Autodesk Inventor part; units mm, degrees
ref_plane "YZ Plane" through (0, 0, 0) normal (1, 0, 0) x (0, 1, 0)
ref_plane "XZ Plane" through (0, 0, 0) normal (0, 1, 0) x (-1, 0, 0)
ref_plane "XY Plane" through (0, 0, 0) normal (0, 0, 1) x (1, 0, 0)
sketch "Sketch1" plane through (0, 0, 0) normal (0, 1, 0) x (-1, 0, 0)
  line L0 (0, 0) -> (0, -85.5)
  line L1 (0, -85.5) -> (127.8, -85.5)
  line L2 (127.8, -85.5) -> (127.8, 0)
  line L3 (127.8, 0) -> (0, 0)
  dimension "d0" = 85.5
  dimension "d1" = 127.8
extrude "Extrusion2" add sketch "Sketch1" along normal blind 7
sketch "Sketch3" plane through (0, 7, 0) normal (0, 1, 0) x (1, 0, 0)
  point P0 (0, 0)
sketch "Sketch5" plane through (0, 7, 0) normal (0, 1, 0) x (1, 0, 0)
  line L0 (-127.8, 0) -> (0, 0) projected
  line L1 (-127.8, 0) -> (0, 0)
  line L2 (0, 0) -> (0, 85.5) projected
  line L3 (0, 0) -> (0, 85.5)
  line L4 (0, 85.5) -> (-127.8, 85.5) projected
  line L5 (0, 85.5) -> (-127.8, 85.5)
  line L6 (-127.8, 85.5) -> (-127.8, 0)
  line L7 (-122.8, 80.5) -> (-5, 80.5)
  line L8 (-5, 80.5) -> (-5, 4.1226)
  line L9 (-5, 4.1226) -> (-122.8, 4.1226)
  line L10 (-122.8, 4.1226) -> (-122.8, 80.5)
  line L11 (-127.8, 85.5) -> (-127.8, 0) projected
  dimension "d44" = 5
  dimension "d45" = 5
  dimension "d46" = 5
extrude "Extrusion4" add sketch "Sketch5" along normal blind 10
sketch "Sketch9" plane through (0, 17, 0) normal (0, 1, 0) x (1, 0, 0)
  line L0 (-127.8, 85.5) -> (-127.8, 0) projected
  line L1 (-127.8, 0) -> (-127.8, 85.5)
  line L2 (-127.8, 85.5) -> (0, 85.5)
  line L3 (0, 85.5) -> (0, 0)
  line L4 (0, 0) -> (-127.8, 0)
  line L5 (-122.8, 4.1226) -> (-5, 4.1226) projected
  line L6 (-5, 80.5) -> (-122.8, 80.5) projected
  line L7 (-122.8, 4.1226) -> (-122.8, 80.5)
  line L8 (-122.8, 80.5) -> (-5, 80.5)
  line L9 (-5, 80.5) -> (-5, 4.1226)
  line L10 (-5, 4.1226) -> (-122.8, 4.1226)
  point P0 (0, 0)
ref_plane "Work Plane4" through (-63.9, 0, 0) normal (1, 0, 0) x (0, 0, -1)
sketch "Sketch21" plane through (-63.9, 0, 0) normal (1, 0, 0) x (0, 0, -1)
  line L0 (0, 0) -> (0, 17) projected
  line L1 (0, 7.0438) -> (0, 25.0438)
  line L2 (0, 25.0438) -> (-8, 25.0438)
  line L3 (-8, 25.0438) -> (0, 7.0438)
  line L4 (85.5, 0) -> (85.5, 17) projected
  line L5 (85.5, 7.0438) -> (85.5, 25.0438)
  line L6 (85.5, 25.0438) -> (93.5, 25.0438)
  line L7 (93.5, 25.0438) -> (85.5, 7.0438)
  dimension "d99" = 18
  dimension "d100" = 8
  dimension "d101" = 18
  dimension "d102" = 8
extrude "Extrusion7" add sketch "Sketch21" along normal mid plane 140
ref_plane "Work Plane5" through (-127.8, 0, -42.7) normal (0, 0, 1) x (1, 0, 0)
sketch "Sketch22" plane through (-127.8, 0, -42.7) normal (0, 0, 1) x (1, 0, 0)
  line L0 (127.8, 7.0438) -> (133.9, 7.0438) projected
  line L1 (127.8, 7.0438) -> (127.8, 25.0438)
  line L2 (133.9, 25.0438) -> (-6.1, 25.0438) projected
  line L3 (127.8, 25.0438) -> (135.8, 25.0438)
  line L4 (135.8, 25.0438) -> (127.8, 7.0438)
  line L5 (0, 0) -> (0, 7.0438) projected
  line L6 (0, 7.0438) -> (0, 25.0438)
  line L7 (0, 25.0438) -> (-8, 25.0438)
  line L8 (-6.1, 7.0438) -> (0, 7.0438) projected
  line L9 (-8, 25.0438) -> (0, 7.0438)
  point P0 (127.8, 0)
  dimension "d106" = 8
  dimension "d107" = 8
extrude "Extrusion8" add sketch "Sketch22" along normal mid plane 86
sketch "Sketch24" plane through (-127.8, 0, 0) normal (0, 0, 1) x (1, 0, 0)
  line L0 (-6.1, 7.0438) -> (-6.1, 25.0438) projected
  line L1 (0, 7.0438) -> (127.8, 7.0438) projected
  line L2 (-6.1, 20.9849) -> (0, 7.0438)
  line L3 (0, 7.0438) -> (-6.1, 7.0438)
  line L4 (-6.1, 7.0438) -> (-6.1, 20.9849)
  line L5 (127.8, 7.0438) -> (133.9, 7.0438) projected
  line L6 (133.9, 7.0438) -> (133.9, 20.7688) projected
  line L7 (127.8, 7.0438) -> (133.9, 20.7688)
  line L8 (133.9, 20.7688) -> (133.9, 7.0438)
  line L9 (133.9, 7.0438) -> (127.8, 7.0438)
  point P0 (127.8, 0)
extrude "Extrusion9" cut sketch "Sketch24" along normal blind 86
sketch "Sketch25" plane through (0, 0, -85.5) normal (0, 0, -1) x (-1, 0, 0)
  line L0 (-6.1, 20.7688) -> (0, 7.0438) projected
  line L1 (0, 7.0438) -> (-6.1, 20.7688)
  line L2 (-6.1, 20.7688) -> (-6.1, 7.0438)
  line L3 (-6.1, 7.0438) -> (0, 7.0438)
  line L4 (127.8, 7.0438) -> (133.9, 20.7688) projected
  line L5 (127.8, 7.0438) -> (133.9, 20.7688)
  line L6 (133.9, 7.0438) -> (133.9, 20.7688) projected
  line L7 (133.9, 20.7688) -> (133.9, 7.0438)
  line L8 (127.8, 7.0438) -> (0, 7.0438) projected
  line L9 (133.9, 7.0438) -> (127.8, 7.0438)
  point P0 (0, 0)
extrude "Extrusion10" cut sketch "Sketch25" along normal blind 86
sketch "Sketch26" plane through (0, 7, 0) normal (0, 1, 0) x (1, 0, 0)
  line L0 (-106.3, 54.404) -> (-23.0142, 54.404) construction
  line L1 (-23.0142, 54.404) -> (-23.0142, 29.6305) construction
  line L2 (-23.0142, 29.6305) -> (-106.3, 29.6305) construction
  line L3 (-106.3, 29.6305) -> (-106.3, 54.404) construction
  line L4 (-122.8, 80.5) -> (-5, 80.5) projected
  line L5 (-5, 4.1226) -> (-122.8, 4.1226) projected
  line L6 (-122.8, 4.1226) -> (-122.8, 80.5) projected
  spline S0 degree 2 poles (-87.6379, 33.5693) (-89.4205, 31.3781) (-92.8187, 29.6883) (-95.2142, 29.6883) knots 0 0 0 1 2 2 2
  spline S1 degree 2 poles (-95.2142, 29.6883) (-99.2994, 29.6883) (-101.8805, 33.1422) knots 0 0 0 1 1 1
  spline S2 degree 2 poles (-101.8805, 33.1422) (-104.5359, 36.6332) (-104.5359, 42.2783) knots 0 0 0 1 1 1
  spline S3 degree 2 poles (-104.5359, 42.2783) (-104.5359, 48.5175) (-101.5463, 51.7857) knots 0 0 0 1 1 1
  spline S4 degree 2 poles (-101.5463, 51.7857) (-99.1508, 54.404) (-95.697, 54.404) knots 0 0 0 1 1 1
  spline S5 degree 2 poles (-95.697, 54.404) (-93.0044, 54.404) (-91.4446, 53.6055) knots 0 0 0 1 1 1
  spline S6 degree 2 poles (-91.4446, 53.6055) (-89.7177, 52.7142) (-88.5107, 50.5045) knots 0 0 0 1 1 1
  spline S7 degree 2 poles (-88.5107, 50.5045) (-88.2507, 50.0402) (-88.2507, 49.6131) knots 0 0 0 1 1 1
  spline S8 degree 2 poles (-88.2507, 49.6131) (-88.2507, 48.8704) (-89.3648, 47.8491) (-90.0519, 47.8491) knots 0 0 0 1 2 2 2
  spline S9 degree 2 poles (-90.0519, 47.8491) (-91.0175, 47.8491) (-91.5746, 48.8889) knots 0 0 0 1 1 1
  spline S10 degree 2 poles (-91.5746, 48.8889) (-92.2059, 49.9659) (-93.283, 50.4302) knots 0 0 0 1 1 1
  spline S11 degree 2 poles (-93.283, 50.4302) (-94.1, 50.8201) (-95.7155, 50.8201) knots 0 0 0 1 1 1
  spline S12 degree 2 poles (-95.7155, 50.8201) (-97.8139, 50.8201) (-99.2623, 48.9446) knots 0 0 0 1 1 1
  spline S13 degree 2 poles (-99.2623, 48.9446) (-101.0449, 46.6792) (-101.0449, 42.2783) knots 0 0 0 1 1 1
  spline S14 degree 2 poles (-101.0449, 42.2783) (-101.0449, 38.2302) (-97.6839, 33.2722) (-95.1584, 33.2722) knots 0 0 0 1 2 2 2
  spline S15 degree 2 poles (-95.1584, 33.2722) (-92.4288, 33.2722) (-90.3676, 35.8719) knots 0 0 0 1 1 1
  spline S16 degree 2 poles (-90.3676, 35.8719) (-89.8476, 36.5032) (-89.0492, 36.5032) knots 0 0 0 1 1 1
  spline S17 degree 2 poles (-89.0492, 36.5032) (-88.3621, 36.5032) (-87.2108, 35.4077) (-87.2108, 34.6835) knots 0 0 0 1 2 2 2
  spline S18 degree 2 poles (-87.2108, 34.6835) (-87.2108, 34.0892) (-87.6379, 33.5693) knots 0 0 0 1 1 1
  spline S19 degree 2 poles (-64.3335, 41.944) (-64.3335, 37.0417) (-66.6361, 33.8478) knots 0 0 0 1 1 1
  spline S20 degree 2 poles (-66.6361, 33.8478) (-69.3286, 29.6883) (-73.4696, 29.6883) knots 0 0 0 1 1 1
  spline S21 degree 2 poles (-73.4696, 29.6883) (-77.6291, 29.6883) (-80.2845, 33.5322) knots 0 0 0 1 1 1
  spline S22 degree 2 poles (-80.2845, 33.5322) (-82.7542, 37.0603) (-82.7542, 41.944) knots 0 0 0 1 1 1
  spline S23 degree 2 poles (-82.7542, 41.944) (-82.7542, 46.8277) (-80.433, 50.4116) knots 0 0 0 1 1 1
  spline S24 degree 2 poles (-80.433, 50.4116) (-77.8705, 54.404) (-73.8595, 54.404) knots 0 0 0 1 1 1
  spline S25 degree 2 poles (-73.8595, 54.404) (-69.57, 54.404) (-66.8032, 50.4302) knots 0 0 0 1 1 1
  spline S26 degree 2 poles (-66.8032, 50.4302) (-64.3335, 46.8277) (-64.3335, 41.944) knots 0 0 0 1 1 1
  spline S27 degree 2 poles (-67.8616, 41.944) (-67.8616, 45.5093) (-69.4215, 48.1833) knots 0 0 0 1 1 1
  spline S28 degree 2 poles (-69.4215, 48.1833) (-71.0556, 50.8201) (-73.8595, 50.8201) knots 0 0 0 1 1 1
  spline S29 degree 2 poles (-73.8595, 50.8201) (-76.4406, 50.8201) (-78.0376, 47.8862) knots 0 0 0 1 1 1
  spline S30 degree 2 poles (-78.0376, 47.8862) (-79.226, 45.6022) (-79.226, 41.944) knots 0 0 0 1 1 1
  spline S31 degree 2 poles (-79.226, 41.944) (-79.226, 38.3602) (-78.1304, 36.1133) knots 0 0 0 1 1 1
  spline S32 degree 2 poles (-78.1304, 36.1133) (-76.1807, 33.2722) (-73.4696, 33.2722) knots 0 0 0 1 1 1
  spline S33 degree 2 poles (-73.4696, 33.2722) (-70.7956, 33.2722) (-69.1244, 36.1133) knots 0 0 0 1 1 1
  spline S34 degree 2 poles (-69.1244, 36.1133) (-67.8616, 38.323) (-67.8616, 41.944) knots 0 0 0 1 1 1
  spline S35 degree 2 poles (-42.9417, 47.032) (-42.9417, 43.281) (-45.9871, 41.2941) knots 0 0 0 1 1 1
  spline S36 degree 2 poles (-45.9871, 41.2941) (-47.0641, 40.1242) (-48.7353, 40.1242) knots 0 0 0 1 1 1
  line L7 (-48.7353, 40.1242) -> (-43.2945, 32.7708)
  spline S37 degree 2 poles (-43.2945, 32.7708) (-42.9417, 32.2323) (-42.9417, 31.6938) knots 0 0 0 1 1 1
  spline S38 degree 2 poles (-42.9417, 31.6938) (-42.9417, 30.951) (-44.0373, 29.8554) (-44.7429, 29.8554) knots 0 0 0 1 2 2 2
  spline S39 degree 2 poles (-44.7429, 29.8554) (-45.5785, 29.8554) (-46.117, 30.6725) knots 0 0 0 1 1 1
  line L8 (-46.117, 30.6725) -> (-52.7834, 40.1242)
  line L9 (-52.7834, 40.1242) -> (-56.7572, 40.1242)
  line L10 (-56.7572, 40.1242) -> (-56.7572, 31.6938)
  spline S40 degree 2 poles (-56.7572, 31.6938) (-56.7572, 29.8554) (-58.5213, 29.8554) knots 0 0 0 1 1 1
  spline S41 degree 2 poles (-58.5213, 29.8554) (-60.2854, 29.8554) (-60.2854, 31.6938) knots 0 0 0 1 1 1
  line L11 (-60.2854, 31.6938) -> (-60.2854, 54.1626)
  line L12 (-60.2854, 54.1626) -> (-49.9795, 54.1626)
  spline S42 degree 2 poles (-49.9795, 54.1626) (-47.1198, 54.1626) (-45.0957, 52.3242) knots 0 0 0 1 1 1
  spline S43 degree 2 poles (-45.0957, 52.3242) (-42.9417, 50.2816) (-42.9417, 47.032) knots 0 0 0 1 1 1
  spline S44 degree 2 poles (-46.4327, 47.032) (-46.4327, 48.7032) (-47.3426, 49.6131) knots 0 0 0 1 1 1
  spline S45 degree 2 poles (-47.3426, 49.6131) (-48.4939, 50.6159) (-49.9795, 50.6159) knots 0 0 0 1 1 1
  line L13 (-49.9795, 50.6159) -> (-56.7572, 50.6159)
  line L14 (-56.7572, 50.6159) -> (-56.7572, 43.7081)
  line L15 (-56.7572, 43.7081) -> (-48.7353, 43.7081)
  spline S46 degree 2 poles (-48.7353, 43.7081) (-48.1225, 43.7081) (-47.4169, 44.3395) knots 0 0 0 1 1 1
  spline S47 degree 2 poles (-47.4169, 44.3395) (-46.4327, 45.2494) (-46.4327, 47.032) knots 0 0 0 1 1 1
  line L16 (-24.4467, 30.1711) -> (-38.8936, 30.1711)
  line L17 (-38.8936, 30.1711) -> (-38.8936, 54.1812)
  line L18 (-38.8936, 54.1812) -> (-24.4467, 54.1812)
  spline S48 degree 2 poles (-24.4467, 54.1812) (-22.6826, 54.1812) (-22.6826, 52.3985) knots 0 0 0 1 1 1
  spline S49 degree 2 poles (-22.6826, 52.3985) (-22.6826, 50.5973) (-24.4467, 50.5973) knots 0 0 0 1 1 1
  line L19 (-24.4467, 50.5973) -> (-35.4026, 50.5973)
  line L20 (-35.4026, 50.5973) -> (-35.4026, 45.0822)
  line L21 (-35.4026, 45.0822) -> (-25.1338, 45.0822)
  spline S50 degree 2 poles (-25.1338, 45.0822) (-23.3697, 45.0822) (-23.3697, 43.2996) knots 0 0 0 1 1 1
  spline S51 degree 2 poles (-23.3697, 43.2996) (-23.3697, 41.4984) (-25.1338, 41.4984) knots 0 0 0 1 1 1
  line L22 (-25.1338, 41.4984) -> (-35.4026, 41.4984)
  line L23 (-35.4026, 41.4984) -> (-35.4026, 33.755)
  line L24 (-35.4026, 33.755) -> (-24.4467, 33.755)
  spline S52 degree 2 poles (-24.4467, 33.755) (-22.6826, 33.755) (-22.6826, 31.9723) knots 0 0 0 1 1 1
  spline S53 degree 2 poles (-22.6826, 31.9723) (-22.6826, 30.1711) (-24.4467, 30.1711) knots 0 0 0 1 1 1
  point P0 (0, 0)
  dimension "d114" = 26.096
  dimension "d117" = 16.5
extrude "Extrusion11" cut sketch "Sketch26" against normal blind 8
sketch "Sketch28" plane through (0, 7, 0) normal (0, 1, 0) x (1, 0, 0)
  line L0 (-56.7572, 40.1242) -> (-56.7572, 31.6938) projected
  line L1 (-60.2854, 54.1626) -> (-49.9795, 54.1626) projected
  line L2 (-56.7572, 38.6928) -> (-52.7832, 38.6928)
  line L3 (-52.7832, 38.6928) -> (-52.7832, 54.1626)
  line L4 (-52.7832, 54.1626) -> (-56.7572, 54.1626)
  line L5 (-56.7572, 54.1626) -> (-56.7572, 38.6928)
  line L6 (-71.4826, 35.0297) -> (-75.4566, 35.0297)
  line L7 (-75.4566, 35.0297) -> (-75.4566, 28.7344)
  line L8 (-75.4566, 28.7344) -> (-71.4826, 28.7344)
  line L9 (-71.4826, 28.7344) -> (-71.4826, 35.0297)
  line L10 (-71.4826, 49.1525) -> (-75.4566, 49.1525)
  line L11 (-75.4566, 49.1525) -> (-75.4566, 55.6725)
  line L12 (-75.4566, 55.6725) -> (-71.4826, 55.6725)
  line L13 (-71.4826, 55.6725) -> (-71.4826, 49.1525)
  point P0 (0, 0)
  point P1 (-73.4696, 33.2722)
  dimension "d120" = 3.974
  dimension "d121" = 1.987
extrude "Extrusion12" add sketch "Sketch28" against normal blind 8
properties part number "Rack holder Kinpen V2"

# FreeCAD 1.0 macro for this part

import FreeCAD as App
import Part
import Sketcher
from FreeCAD import Vector

doc = App.newDocument("Part")
body = doc.addObject("PartDesign::Body", "Body")
body.AllowCompound = True

sketch1 = body.newObject("Sketcher::SketchObject", "Sketch")
sketch1.AttachmentSupport = (doc.getObject("XZ_Plane"), [""])
sketch1.MapMode = "FlatFace"
sketch1.addGeometry([
    Part.LineSegment(Vector(-128, 0, 0), Vector(0, 0, 0)),
    Part.LineSegment(Vector(0, 0, 0), Vector(0, -86, 0)),
    Part.LineSegment(Vector(0, -86, 0), Vector(-128, -86, 0)),
    Part.LineSegment(Vector(-128, -86, 0), Vector(-128, 0, 0)),
], False)
sketch1.addConstraint([
    Sketcher.Constraint("Coincident", 0, 2, 1, 1),
    Sketcher.Constraint("Coincident", 1, 2, 2, 1),
    Sketcher.Constraint("Coincident", 2, 2, 3, 1),
    Sketcher.Constraint("Coincident", 3, 2, 0, 1),
    Sketcher.Constraint("Horizontal", 0),
    Sketcher.Constraint("Vertical", 1),
    Sketcher.Constraint("Horizontal", 2),
    Sketcher.Constraint("Vertical", 3),
    Sketcher.Constraint("Coincident", 0, 2, -1, 1),
    Sketcher.Constraint("DistanceX", 0, 1, 0, 2, 127.8),
    Sketcher.Constraint("DistanceY", 1, 2, 1, 1, 85.5),
])
pad1 = body.newObject("PartDesign::Pad", "Pad")
pad1.Profile = sketch1
pad1.Length = 7
pad1.Reversed = True

sketch2 = body.newObject("Sketcher::SketchObject", "Sketch001")
sketch2.AttachmentSupport = (doc.getObject("XZ_Plane"), [""])
sketch2.MapMode = "FlatFace"
sketch2.AttachmentOffset = App.Placement(Vector(0, 0, -7), App.Rotation())
sketch2.addGeometry([
    Part.LineSegment(Vector(-128, -86, 0), Vector(-128, 0, 0)),
    Part.LineSegment(Vector(-128, 0, 0), Vector(0, 0, 0)),
    Part.LineSegment(Vector(0, 0, 0), Vector(0, -86, 0)),
    Part.LineSegment(Vector(0, -86, 0), Vector(-128, -86, 0)),
    Part.LineSegment(Vector(-123, -4, 0), Vector(-123, -80, 0)),
    Part.LineSegment(Vector(-123, -80, 0), Vector(-5, -80, 0)),
    Part.LineSegment(Vector(-5, -80, 0), Vector(-5, -4, 0)),
    Part.LineSegment(Vector(-5, -4, 0), Vector(-123, -4, 0)),
], False)
sketch2.addConstraint([
    Sketcher.Constraint("Coincident", 0, 2, 1, 1),
    Sketcher.Constraint("Coincident", 1, 2, 2, 1),
    Sketcher.Constraint("Coincident", 2, 2, 3, 1),
    Sketcher.Constraint("Coincident", 3, 2, 0, 1),
    Sketcher.Constraint("Coincident", 4, 2, 5, 1),
    Sketcher.Constraint("Coincident", 5, 2, 6, 1),
    Sketcher.Constraint("Coincident", 6, 2, 7, 1),
    Sketcher.Constraint("Coincident", 7, 2, 4, 1),
    Sketcher.Constraint("Vertical", 0),
    Sketcher.Constraint("Horizontal", 1),
    Sketcher.Constraint("Vertical", 2),
    Sketcher.Constraint("Horizontal", 3),
    Sketcher.Constraint("Vertical", 4),
    Sketcher.Constraint("Horizontal", 5),
    Sketcher.Constraint("Vertical", 6),
    Sketcher.Constraint("Horizontal", 7),
    Sketcher.Constraint("Coincident", 1, 2, -1, 1),
    Sketcher.Constraint("DistanceX", 5, 2, -1, 1, 5.0),
    Sketcher.Constraint("DistanceX", 3, 2, 4, 2, 5.0),
    Sketcher.Constraint("DistanceY", 3, 2, 4, 2, 5.0),
    Sketcher.Constraint("DistanceX", 1, 1, 1, 2, 127.8),
    Sketcher.Constraint("DistanceY", 0, 1, 0, 2, 85.5),
    Sketcher.Constraint("DistanceY", 4, 2, 4, 1, 76.3774),
])
pad2 = body.newObject("PartDesign::Pad", "Pad001")
pad2.Profile = sketch2
pad2.Length = 10
pad2.Reversed = True

sketch3 = body.newObject("Sketcher::SketchObject", "Sketch002")
sketch3.AttachmentSupport = (doc.getObject("YZ_Plane"), [""])
sketch3.MapMode = "FlatFace"
sketch3.AttachmentOffset = App.Placement(Vector(0, 0, -63.9), App.Rotation())
sketch3.addGeometry([
    Part.LineSegment(Vector(25, 8, 0), Vector(7, 0, 0)),
    Part.LineSegment(Vector(7, 0, 0), Vector(25, 0, 0)),
    Part.LineSegment(Vector(25, 0, 0), Vector(25, 8, 0)),
    Part.LineSegment(Vector(25, -86, 0), Vector(7, -86, 0)),
    Part.LineSegment(Vector(7, -86, 0), Vector(25, -94, 0)),
    Part.LineSegment(Vector(25, -94, 0), Vector(25, -86, 0)),
], False)
sketch3.addConstraint([
    Sketcher.Constraint("Coincident", 0, 2, 1, 1),
    Sketcher.Constraint("Coincident", 1, 2, 2, 1),
    Sketcher.Constraint("Coincident", 2, 2, 0, 1),
    Sketcher.Constraint("Coincident", 3, 2, 4, 1),
    Sketcher.Constraint("Coincident", 4, 2, 5, 1),
    Sketcher.Constraint("Coincident", 5, 2, 3, 1),
    Sketcher.Constraint("Horizontal", 1),
    Sketcher.Constraint("Vertical", 2),
    Sketcher.Constraint("Horizontal", 3),
    Sketcher.Constraint("Vertical", 5),
    Sketcher.Constraint("PointOnObject", 0, 2, -1),
    Sketcher.Constraint("Vertical", 0, 2, 3, 2),
    Sketcher.Constraint("Vertical", 2, 2, 4, 2),
    Sketcher.Constraint("Equal", 2, 5),
    Sketcher.Constraint("DistanceX", 1, 1, 1, 2, 18.0),
    Sketcher.Constraint("DistanceY", 2, 1, 2, 2, 8.0),
    Sketcher.Constraint("DistanceY", 3, 2, -1, 1, 85.5),
    Sketcher.Constraint("DistanceX", -1, 1, 0, 2, 7.0438),
])
pad3 = body.newObject("PartDesign::Pad", "Pad002")
pad3.Profile = sketch3
pad3.Length = 140
pad3.Midplane = True

sketch4 = body.newObject("Sketcher::SketchObject", "Sketch003")
sketch4.AttachmentSupport = (doc.getObject("XY_Plane"), [""])
sketch4.MapMode = "FlatFace"
sketch4.AttachmentOffset = App.Placement(Vector(0, 0, -42.7), App.Rotation())
sketch4.addGeometry([
    Part.LineSegment(Vector(-128, 7, 0), Vector(-128, 25, 0)),
    Part.LineSegment(Vector(-128, 25, 0), Vector(-136, 25, 0)),
    Part.LineSegment(Vector(-136, 25, 0), Vector(-128, 7, 0)),
    Part.LineSegment(Vector(0, 25, 0), Vector(0, 7, 0)),
    Part.LineSegment(Vector(0, 7, 0), Vector(8, 25, 0)),
    Part.LineSegment(Vector(8, 25, 0), Vector(0, 25, 0)),
], False)
sketch4.addConstraint([
    Sketcher.Constraint("Coincident", 0, 2, 1, 1),
    Sketcher.Constraint("Coincident", 1, 2, 2, 1),
    Sketcher.Constraint("Coincident", 2, 2, 0, 1),
    Sketcher.Constraint("Coincident", 3, 2, 4, 1),
    Sketcher.Constraint("Coincident", 4, 2, 5, 1),
    Sketcher.Constraint("Coincident", 5, 2, 3, 1),
    Sketcher.Constraint("Vertical", 0),
    Sketcher.Constraint("Horizontal", 1),
    Sketcher.Constraint("Vertical", 3),
    Sketcher.Constraint("Horizontal", 5),
    Sketcher.Constraint("PointOnObject", 3, 2, -2),
    Sketcher.Constraint("Horizontal", 2, 2, 3, 2),
    Sketcher.Constraint("Horizontal", 1, 2, 4, 2),
    Sketcher.Constraint("Equal", 1, 5),
    Sketcher.Constraint("DistanceX", 1, 2, 1, 1, 8.0),
    Sketcher.Constraint("DistanceY", 0, 1, 0, 2, 18.0),
    Sketcher.Constraint("DistanceX", 0, 2, -1, 1, 127.8),
    Sketcher.Constraint("DistanceY", -1, 1, 0, 2, 25.0438),
])
pad4 = body.newObject("PartDesign::Pad", "Pad003")
pad4.Profile = sketch4
pad4.Length = 86
pad4.Midplane = True

sketch5 = body.newObject("Sketcher::SketchObject", "Sketch004")
sketch5.AttachmentSupport = (doc.getObject("XY_Plane"), [""])
sketch5.MapMode = "FlatFace"
sketch5.addGeometry([
    Part.LineSegment(Vector(6, 21, 0), Vector(0, 7, 0)),
    Part.LineSegment(Vector(0, 7, 0), Vector(6, 7, 0)),
    Part.LineSegment(Vector(6, 7, 0), Vector(6, 21, 0)),
    Part.LineSegment(Vector(-134, 21, 0), Vector(-134, 7, 0)),
    Part.LineSegment(Vector(-134, 7, 0), Vector(-128, 7, 0)),
    Part.LineSegment(Vector(-128, 7, 0), Vector(-134, 21, 0)),
], False)
sketch5.addConstraint([
    Sketcher.Constraint("Coincident", 0, 2, 1, 1),
    Sketcher.Constraint("Coincident", 1, 2, 2, 1),
    Sketcher.Constraint("Coincident", 2, 2, 0, 1),
    Sketcher.Constraint("Coincident", 3, 2, 4, 1),
    Sketcher.Constraint("Coincident", 4, 2, 5, 1),
    Sketcher.Constraint("Coincident", 5, 2, 3, 1),
    Sketcher.Constraint("Horizontal", 1),
    Sketcher.Constraint("Vertical", 2),
    Sketcher.Constraint("Vertical", 3),
    Sketcher.Constraint("Horizontal", 4),
    Sketcher.Constraint("PointOnObject", 0, 2, -2),
    Sketcher.Constraint("Horizontal", 1, 2, 3, 2),
    Sketcher.Constraint("Equal", 1, 4),
    Sketcher.Constraint("DistanceX", 1, 1, 1, 2, 6.1),
    Sketcher.Constraint("DistanceX", 3, 2, 1, 2, 140.0),
    Sketcher.Constraint("DistanceY", 2, 1, 2, 2, 13.725),
    Sketcher.Constraint("DistanceY", 3, 2, 3, 1, 13.941),
    Sketcher.Constraint("DistanceY", -1, 1, 5, 2, 20.985),
])
pocket1 = body.newObject("PartDesign::Pocket", "Pocket")
pocket1.Profile = sketch5
pocket1.Length = 86
pocket1.Reversed = True

sketch6 = body.newObject("Sketcher::SketchObject", "Sketch005")
sketch6.AttachmentSupport = (doc.getObject("XY_Plane"), [""])
sketch6.MapMode = "FlatFace"
sketch6.AttachmentOffset = App.Placement(Vector(0, 0, -85.5), App.Rotation())
sketch6.addGeometry([
    Part.LineSegment(Vector(-134, 21, 0), Vector(-128, 7, 0)),
    Part.LineSegment(Vector(-128, 7, 0), Vector(-134, 7, 0)),
    Part.LineSegment(Vector(-134, 7, 0), Vector(-134, 21, 0)),
    Part.LineSegment(Vector(0, 7, 0), Vector(6, 21, 0)),
    Part.LineSegment(Vector(6, 21, 0), Vector(6, 7, 0)),
    Part.LineSegment(Vector(6, 7, 0), Vector(0, 7, 0)),
], False)
sketch6.addConstraint([
    Sketcher.Constraint("Coincident", 0, 2, 1, 1),
    Sketcher.Constraint("Coincident", 1, 2, 2, 1),
    Sketcher.Constraint("Coincident", 2, 2, 0, 1),
    Sketcher.Constraint("Coincident", 3, 2, 4, 1),
    Sketcher.Constraint("Coincident", 4, 2, 5, 1),
    Sketcher.Constraint("Coincident", 5, 2, 3, 1),
    Sketcher.Constraint("Horizontal", 1),
    Sketcher.Constraint("Vertical", 2),
    Sketcher.Constraint("Vertical", 4),
    Sketcher.Constraint("Horizontal", 5),
    Sketcher.Constraint("PointOnObject", 5, 2, -2),
    Sketcher.Constraint("Horizontal", 2, 2, 3, 2),
    Sketcher.Constraint("Horizontal", 1, 2, 4, 2),
    Sketcher.Constraint("Equal", 1, 5),
    Sketcher.Constraint("DistanceX", 1, 2, 1, 1, 6.1),
    Sketcher.Constraint("DistanceX", 2, 2, 3, 2, 140.0),
    Sketcher.Constraint("DistanceY", 2, 1, 2, 2, 13.725),
    Sketcher.Constraint("DistanceY", -1, 1, 0, 2, 7.0438),
])
pocket2 = body.newObject("PartDesign::Pocket", "Pocket001")
pocket2.Profile = sketch6
pocket2.Length = 86

sketch7 = body.newObject("Sketcher::SketchObject", "Sketch006")
sketch7.AttachmentSupport = (doc.getObject("XZ_Plane"), [""])
sketch7.MapMode = "FlatFace"
sketch7.AttachmentOffset = App.Placement(Vector(0, 0, -7), App.Rotation())
sketch7.addGeometry([
    Part.BSplineCurve([Vector(-87.6379, -33.5693, 0), Vector(-89.4205, -31.3781, 0), Vector(-92.8187, -29.6883, 0), Vector(-95.2142, -29.6883, 0)], [3, 1, 3], [0, 1, 2], False, 2, [1, 1, 1, 1], False),
    Part.BSplineCurve([Vector(-87.2108, -34.6835, 0), Vector(-87.2108, -34.0892, 0), Vector(-87.6379, -33.5693, 0)], [3, 3], [0, 1], False, 2, [1, 1, 1], False),
    Part.BSplineCurve([Vector(-89.0492, -36.5032, 0), Vector(-88.3621, -36.5032, 0), Vector(-87.2108, -35.4077, 0), Vector(-87.2108, -34.6835, 0)], [3, 1, 3], [0, 1, 2], False, 2, [1, 1, 1, 1], False),
    Part.BSplineCurve([Vector(-90.3676, -35.8719, 0), Vector(-89.8476, -36.5032, 0), Vector(-89.0492, -36.5032, 0)], [3, 3], [0, 1], False, 2, [1, 1, 1], False),
    Part.BSplineCurve([Vector(-95.1584, -33.2722, 0), Vector(-92.4288, -33.2722, 0), Vector(-90.3676, -35.8719, 0)], [3, 3], [0, 1], False, 2, [1, 1, 1], False),
    Part.BSplineCurve([Vector(-101.0449, -42.2783, 0), Vector(-101.0449, -38.2302, 0), Vector(-97.6839, -33.2722, 0), Vector(-95.1584, -33.2722, 0)], [3, 1, 3], [0, 1, 2], False, 2, [1, 1, 1, 1], False),
    Part.BSplineCurve([Vector(-99.2623, -48.9446, 0), Vector(-101.0449, -46.6792, 0), Vector(-101.0449, -42.2783, 0)], [3, 3], [0, 1], False, 2, [1, 1, 1], False),
    Part.BSplineCurve([Vector(-95.7155, -50.8201, 0), Vector(-97.8139, -50.8201, 0), Vector(-99.2623, -48.9446, 0)], [3, 3], [0, 1], False, 2, [1, 1, 1], False),
    Part.BSplineCurve([Vector(-93.283, -50.4302, 0), Vector(-94.1, -50.8201, 0), Vector(-95.7155, -50.8201, 0)], [3, 3], [0, 1], False, 2, [1, 1, 1], False),
    Part.BSplineCurve([Vector(-91.5746, -48.8889, 0), Vector(-92.2059, -49.9659, 0), Vector(-93.283, -50.4302, 0)], [3, 3], [0, 1], False, 2, [1, 1, 1], False),
    Part.BSplineCurve([Vector(-90.0519, -47.8491, 0), Vector(-91.0175, -47.8491, 0), Vector(-91.5746, -48.8889, 0)], [3, 3], [0, 1], False, 2, [1, 1, 1], False),
    Part.BSplineCurve([Vector(-88.2507, -49.6131, 0), Vector(-88.2507, -48.8704, 0), Vector(-89.3648, -47.8491, 0), Vector(-90.0519, -47.8491, 0)], [3, 1, 3], [0, 1, 2], False, 2, [1, 1, 1, 1], False),
    Part.BSplineCurve([Vector(-88.5107, -50.5045, 0), Vector(-88.2507, -50.0402, 0), Vector(-88.2507, -49.6131, 0)], [3, 3], [0, 1], False, 2, [1, 1, 1], False),
    Part.BSplineCurve([Vector(-91.4446, -53.6055, 0), Vector(-89.7177, -52.7142, 0), Vector(-88.5107, -50.5045, 0)], [3, 3], [0, 1], False, 2, [1, 1, 1], False),
    Part.BSplineCurve([Vector(-95.697, -54.404, 0), Vector(-93.0044, -54.404, 0), Vector(-91.4446, -53.6055, 0)], [3, 3], [0, 1], False, 2, [1, 1, 1], False),
    Part.BSplineCurve([Vector(-101.5463, -51.7857, 0), Vector(-99.1508, -54.404, 0), Vector(-95.697, -54.404, 0)], [3, 3], [0, 1], False, 2, [1, 1, 1], False),
    Part.BSplineCurve([Vector(-104.5359, -42.2783, 0), Vector(-104.5359, -48.5175, 0), Vector(-101.5463, -51.7857, 0)], [3, 3], [0, 1], False, 2, [1, 1, 1], False),
    Part.BSplineCurve([Vector(-101.8805, -33.1422, 0), Vector(-104.5359, -36.6332, 0), Vector(-104.5359, -42.2783, 0)], [3, 3], [0, 1], False, 2, [1, 1, 1], False),
    Part.BSplineCurve([Vector(-95.2142, -29.6883, 0), Vector(-99.2994, -29.6883, 0), Vector(-101.8805, -33.1422, 0)], [3, 3], [0, 1], False, 2, [1, 1, 1], False),
    Part.BSplineCurve([Vector(-64.3335, -41.944, 0), Vector(-64.3335, -37.0417, 0), Vector(-66.6361, -33.8478, 0)], [3, 3], [0, 1], False, 2, [1, 1, 1], False),
    Part.BSplineCurve([Vector(-66.8032, -50.4302, 0), Vector(-64.3335, -46.8277, 0), Vector(-64.3335, -41.944, 0)], [3, 3], [0, 1], False, 2, [1, 1, 1], False),
    Part.BSplineCurve([Vector(-73.8595, -54.404, 0), Vector(-69.57, -54.404, 0), Vector(-66.8032, -50.4302, 0)], [3, 3], [0, 1], False, 2, [1, 1, 1], False),
    Part.BSplineCurve([Vector(-80.433, -50.4116, 0), Vector(-77.8705, -54.404, 0), Vector(-73.8595, -54.404, 0)], [3, 3], [0, 1], False, 2, [1, 1, 1], False),
    Part.BSplineCurve([Vector(-82.7542, -41.944, 0), Vector(-82.7542, -46.8277, 0), Vector(-80.433, -50.4116, 0)], [3, 3], [0, 1], False, 2, [1, 1, 1], False),
    Part.BSplineCurve([Vector(-80.2845, -33.5322, 0), Vector(-82.7542, -37.0603, 0), Vector(-82.7542, -41.944, 0)], [3, 3], [0, 1], False, 2, [1, 1, 1], False),
    Part.BSplineCurve([Vector(-73.4696, -29.6883, 0), Vector(-77.6291, -29.6883, 0), Vector(-80.2845, -33.5322, 0)], [3, 3], [0, 1], False, 2, [1, 1, 1], False),
    Part.BSplineCurve([Vector(-66.6361, -33.8478, 0), Vector(-69.3286, -29.6883, 0), Vector(-73.4696, -29.6883, 0)], [3, 3], [0, 1], False, 2, [1, 1, 1], False),
    Part.BSplineCurve([Vector(-67.8616, -41.944, 0), Vector(-67.8616, -45.5093, 0), Vector(-69.4215, -48.1833, 0)], [3, 3], [0, 1], False, 2, [1, 1, 1], False),
    Part.BSplineCurve([Vector(-69.1244, -36.1133, 0), Vector(-67.8616, -38.323, 0), Vector(-67.8616, -41.944, 0)], [3, 3], [0, 1], False, 2, [1, 1, 1], False),
    Part.BSplineCurve([Vector(-73.4696, -33.2722, 0), Vector(-70.7956, -33.2722, 0), Vector(-69.1244, -36.1133, 0)], [3, 3], [0, 1], False, 2, [1, 1, 1], False),
    Part.BSplineCurve([Vector(-78.1304, -36.1133, 0), Vector(-76.1807, -33.2722, 0), Vector(-73.4696, -33.2722, 0)], [3, 3], [0, 1], False, 2, [1, 1, 1], False),
    Part.BSplineCurve([Vector(-79.226, -41.944, 0), Vector(-79.226, -38.3602, 0), Vector(-78.1304, -36.1133, 0)], [3, 3], [0, 1], False, 2, [1, 1, 1], False),
    Part.BSplineCurve([Vector(-78.0376, -47.8862, 0), Vector(-79.226, -45.6022, 0), Vector(-79.226, -41.944, 0)], [3, 3], [0, 1], False, 2, [1, 1, 1], False),
    Part.BSplineCurve([Vector(-73.8595, -50.8201, 0), Vector(-76.4406, -50.8201, 0), Vector(-78.0376, -47.8862, 0)], [3, 3], [0, 1], False, 2, [1, 1, 1], False),
    Part.BSplineCurve([Vector(-69.4215, -48.1833, 0), Vector(-71.0556, -50.8201, 0), Vector(-73.8595, -50.8201, 0)], [3, 3], [0, 1], False, 2, [1, 1, 1], False),
    Part.BSplineCurve([Vector(-42.9417, -47.032, 0), Vector(-42.9417, -43.281, 0), Vector(-45.9871, -41.2941, 0)], [3, 3], [0, 1], False, 2, [1, 1, 1], False),
    Part.BSplineCurve([Vector(-45.0957, -52.3242, 0), Vector(-42.9417, -50.2816, 0), Vector(-42.9417, -47.032, 0)], [3, 3], [0, 1], False, 2, [1, 1, 1], False),
    Part.BSplineCurve([Vector(-49.9795, -54.1626, 0), Vector(-47.1198, -54.1626, 0), Vector(-45.0957, -52.3242, 0)], [3, 3], [0, 1], False, 2, [1, 1, 1], False),
    Part.LineSegment(Vector(-49.9795, -54.1626, 0), Vector(-60.2854, -54.1626, 0)),
    Part.LineSegment(Vector(-60.2854, -54.1626, 0), Vector(-60.2854, -31.6938, 0)),
    Part.BSplineCurve([Vector(-58.5213, -29.8554, 0), Vector(-60.2854, -29.8554, 0), Vector(-60.2854, -31.6938, 0)], [3, 3], [0, 1], False, 2, [1, 1, 1], False),
    Part.BSplineCurve([Vector(-56.7572, -31.6938, 0), Vector(-56.7572, -29.8554, 0), Vector(-58.5213, -29.8554, 0)], [3, 3], [0, 1], False, 2, [1, 1, 1], False),
    Part.LineSegment(Vector(-56.7572, -31.6938, 0), Vector(-56.7572, -40.1242, 0)),
    Part.LineSegment(Vector(-56.7572, -40.1242, 0), Vector(-52.7834, -40.1242, 0)),
    Part.LineSegment(Vector(-52.7834, -40.1242, 0), Vector(-46.117, -30.6725, 0)),
    Part.BSplineCurve([Vector(-44.7429, -29.8554, 0), Vector(-45.5785, -29.8554, 0), Vector(-46.117, -30.6725, 0)], [3, 3], [0, 1], False, 2, [1, 1, 1], False),
    Part.BSplineCurve([Vector(-42.9417, -31.6938, 0), Vector(-42.9417, -30.951, 0), Vector(-44.0373, -29.8554, 0), Vector(-44.7429, -29.8554, 0)], [3, 1, 3], [0, 1, 2], False, 2, [1, 1, 1, 1], False),
    Part.BSplineCurve([Vector(-43.2945, -32.7708, 0), Vector(-42.9417, -32.2323, 0), Vector(-42.9417, -31.6938, 0)], [3, 3], [0, 1], False, 2, [1, 1, 1], False),
    Part.LineSegment(Vector(-43.2945, -32.7708, 0), Vector(-48.7353, -40.1242, 0)),
    Part.BSplineCurve([Vector(-45.9871, -41.2941, 0), Vector(-47.0641, -40.1242, 0), Vector(-48.7353, -40.1242, 0)], [3, 3], [0, 1], False, 2, [1, 1, 1], False),
    Part.BSplineCurve([Vector(-46.4327, -47.032, 0), Vector(-46.4327, -48.7032, 0), Vector(-47.3426, -49.6131, 0)], [3, 3], [0, 1], False, 2, [1, 1, 1], False),
    Part.BSplineCurve([Vector(-47.4169, -44.3395, 0), Vector(-46.4327, -45.2494, 0), Vector(-46.4327, -47.032, 0)], [3, 3], [0, 1], False, 2, [1, 1, 1], False),
    Part.BSplineCurve([Vector(-48.7353, -43.7081, 0), Vector(-48.1225, -43.7081, 0), Vector(-47.4169, -44.3395, 0)], [3, 3], [0, 1], False, 2, [1, 1, 1], False),
    Part.LineSegment(Vector(-48.7353, -43.7081, 0), Vector(-56.7572, -43.7081, 0)),
    Part.LineSegment(Vector(-56.7572, -43.7081, 0), Vector(-56.7572, -50.6159, 0)),
    Part.LineSegment(Vector(-56.7572, -50.6159, 0), Vector(-49.9795, -50.6159, 0)),
    Part.BSplineCurve([Vector(-47.3426, -49.6131, 0), Vector(-48.4939, -50.6159, 0), Vector(-49.9795, -50.6159, 0)], [3, 3], [0, 1], False, 2, [1, 1, 1], False),
    Part.LineSegment(Vector(-38.8936, -30.1711, 0), Vector(-24.4467, -30.1711, 0)),
    Part.BSplineCurve([Vector(-22.6826, -31.9723, 0), Vector(-22.6826, -30.1711, 0), Vector(-24.4467, -30.1711, 0)], [3, 3], [0, 1], False, 2, [1, 1, 1], False),
    Part.BSplineCurve([Vector(-24.4467, -33.755, 0), Vector(-22.6826, -33.755, 0), Vector(-22.6826, -31.9723, 0)], [3, 3], [0, 1], False, 2, [1, 1, 1], False),
    Part.LineSegment(Vector(-24.4467, -33.755, 0), Vector(-35.4026, -33.755, 0)),
    Part.LineSegment(Vector(-35.4026, -33.755, 0), Vector(-35.4026, -41.4984, 0)),
    Part.LineSegment(Vector(-35.4026, -41.4984, 0), Vector(-25.1338, -41.4984, 0)),
    Part.BSplineCurve([Vector(-23.3697, -43.2996, 0), Vector(-23.3697, -41.4984, 0), Vector(-25.1338, -41.4984, 0)], [3, 3], [0, 1], False, 2, [1, 1, 1], False),
    Part.BSplineCurve([Vector(-25.1338, -45.0822, 0), Vector(-23.3697, -45.0822, 0), Vector(-23.3697, -43.2996, 0)], [3, 3], [0, 1], False, 2, [1, 1, 1], False),
    Part.LineSegment(Vector(-25.1338, -45.0822, 0), Vector(-35.4026, -45.0822, 0)),
    Part.LineSegment(Vector(-35.4026, -45.0822, 0), Vector(-35.4026, -50.5973, 0)),
    Part.LineSegment(Vector(-35.4026, -50.5973, 0), Vector(-24.4467, -50.5973, 0)),
    Part.BSplineCurve([Vector(-22.6826, -52.3985, 0), Vector(-22.6826, -50.5973, 0), Vector(-24.4467, -50.5973, 0)], [3, 3], [0, 1], False, 2, [1, 1, 1], False),
    Part.BSplineCurve([Vector(-24.4467, -54.1812, 0), Vector(-22.6826, -54.1812, 0), Vector(-22.6826, -52.3985, 0)], [3, 3], [0, 1], False, 2, [1, 1, 1], False),
    Part.LineSegment(Vector(-24.4467, -54.1812, 0), Vector(-38.8936, -54.1812, 0)),
    Part.LineSegment(Vector(-38.8936, -54.1812, 0), Vector(-38.8936, -30.1711, 0)),
], False)
sketch7.addConstraint([
    Sketcher.Constraint("Block", 0),
    Sketcher.Constraint("Block", 1),
    Sketcher.Constraint("Block", 2),
    Sketcher.Constraint("Block", 3),
    Sketcher.Constraint("Block", 4),
    Sketcher.Constraint("Block", 5),
    Sketcher.Constraint("Block", 6),
    Sketcher.Constraint("Block", 7),
    Sketcher.Constraint("Block", 8),
    Sketcher.Constraint("Block", 9),
    Sketcher.Constraint("Block", 10),
    Sketcher.Constraint("Block", 11),
    Sketcher.Constraint("Block", 12),
    Sketcher.Constraint("Block", 13),
    Sketcher.Constraint("Block", 14),
    Sketcher.Constraint("Block", 15),
    Sketcher.Constraint("Block", 16),
    Sketcher.Constraint("Block", 17),
    Sketcher.Constraint("Block", 18),
    Sketcher.Constraint("Block", 19),
    Sketcher.Constraint("Block", 20),
    Sketcher.Constraint("Block", 21),
    Sketcher.Constraint("Block", 22),
    Sketcher.Constraint("Block", 23),
    Sketcher.Constraint("Block", 24),
    Sketcher.Constraint("Block", 25),
    Sketcher.Constraint("Block", 26),
    Sketcher.Constraint("Block", 27),
    Sketcher.Constraint("Block", 28),
    Sketcher.Constraint("Block", 29),
    Sketcher.Constraint("Block", 30),
    Sketcher.Constraint("Block", 31),
    Sketcher.Constraint("Block", 32),
    Sketcher.Constraint("Block", 33),
    Sketcher.Constraint("Block", 34),
    Sketcher.Constraint("Block", 35),
    Sketcher.Constraint("Block", 36),
    Sketcher.Constraint("Block", 37),
    Sketcher.Constraint("Block", 40),
    Sketcher.Constraint("Block", 41),
    Sketcher.Constraint("Block", 45),
    Sketcher.Constraint("Block", 46),
    Sketcher.Constraint("Block", 47),
    Sketcher.Constraint("Block", 49),
    Sketcher.Constraint("Block", 50),
    Sketcher.Constraint("Block", 51),
    Sketcher.Constraint("Block", 52),
    Sketcher.Constraint("Block", 56),
    Sketcher.Constraint("Block", 58),
    Sketcher.Constraint("Block", 59),
    Sketcher.Constraint("Block", 63),
    Sketcher.Constraint("Block", 64),
    Sketcher.Constraint("Block", 68),
    Sketcher.Constraint("Block", 69),
    Sketcher.Constraint("Coincident", 37, 1, 38, 1),
    Sketcher.Constraint("Coincident", 38, 2, 39, 1),
    Sketcher.Constraint("Coincident", 39, 2, 40, 2),
    Sketcher.Constraint("Coincident", 41, 1, 42, 1),
    Sketcher.Constraint("Coincident", 42, 2, 43, 1),
    Sketcher.Constraint("Coincident", 43, 2, 44, 1),
    Sketcher.Constraint("Coincident", 44, 2, 45, 2),
    Sketcher.Constraint("Coincident", 47, 1, 48, 1),
    Sketcher.Constraint("Coincident", 48, 2, 49, 2),
    Sketcher.Constraint("Coincident", 52, 1, 53, 1),
    Sketcher.Constraint("Coincident", 53, 2, 54, 1),
    Sketcher.Constraint("Coincident", 54, 2, 55, 1),
    Sketcher.Constraint("Coincident", 55, 2, 56, 2),
    Sketcher.Constraint("Coincident", 57, 2, 58, 2),
    Sketcher.Constraint("Coincident", 59, 1, 60, 1),
    Sketcher.Constraint("Coincident", 60, 2, 61, 1),
    Sketcher.Constraint("Coincident", 61, 2, 62, 1),
    Sketcher.Constraint("Coincident", 62, 2, 63, 2),
    Sketcher.Constraint("Coincident", 64, 1, 65, 1),
    Sketcher.Constraint("Coincident", 65, 2, 66, 1),
    Sketcher.Constraint("Coincident", 66, 2, 67, 1),
    Sketcher.Constraint("Coincident", 67, 2, 68, 2),
    Sketcher.Constraint("Coincident", 69, 1, 70, 1),
    Sketcher.Constraint("Coincident", 70, 2, 71, 1),
    Sketcher.Constraint("Coincident", 71, 2, 57, 1),
    Sketcher.Constraint("Horizontal", 38),
    Sketcher.Constraint("Vertical", 39),
    Sketcher.Constraint("Vertical", 42),
    Sketcher.Constraint("Horizontal", 43),
    Sketcher.Constraint("Horizontal", 53),
    Sketcher.Constraint("Vertical", 54),
    Sketcher.Constraint("Horizontal", 55),
    Sketcher.Constraint("Horizontal", 57),
    Sketcher.Constraint("Horizontal", 60),
    Sketcher.Constraint("Vertical", 61),
    Sketcher.Constraint("Horizontal", 62),
    Sketcher.Constraint("Horizontal", 65),
    Sketcher.Constraint("Vertical", 66),
    Sketcher.Constraint("Horizontal", 67),
    Sketcher.Constraint("Horizontal", 70),
    Sketcher.Constraint("Vertical", 71),
    Sketcher.Constraint("Horizontal", 43, 2, 48, 2),
    Sketcher.Constraint("Vertical", 42, 2, 53, 2),
    Sketcher.Constraint("Vertical", 61, 2, 65, 2),
    Sketcher.Constraint("DistanceX", 57, 1, 57, 2, 14.447),
    Sketcher.Constraint("DistanceX", 60, 2, 60, 1, 10.956),
    Sketcher.Constraint("DistanceX", 43, 1, 43, 2, 3.9738),
])
pocket3 = body.newObject("PartDesign::Pocket", "Pocket002")
pocket3.Profile = sketch7
pocket3.Length = 8
pocket3.Reversed = True

sketch8 = body.newObject("Sketcher::SketchObject", "Sketch007")
sketch8.AttachmentSupport = (doc.getObject("XZ_Plane"), [""])
sketch8.MapMode = "FlatFace"
sketch8.AttachmentOffset = App.Placement(Vector(0, 0, -7), App.Rotation())
sketch8.addGeometry([
    Part.LineSegment(Vector(-56.8, -54.2, 0), Vector(-56.8, -38.7, 0)),
    Part.LineSegment(Vector(-56.8, -38.7, 0), Vector(-52.8, -38.7, 0)),
    Part.LineSegment(Vector(-52.8, -38.7, 0), Vector(-52.8, -54.2, 0)),
    Part.LineSegment(Vector(-52.8, -54.2, 0), Vector(-56.8, -54.2, 0)),
    Part.LineSegment(Vector(-71.5, -28.7, 0), Vector(-71.5, -35, 0)),
    Part.LineSegment(Vector(-71.5, -35, 0), Vector(-75.5, -35, 0)),
    Part.LineSegment(Vector(-75.5, -35, 0), Vector(-75.5, -28.7, 0)),
    Part.LineSegment(Vector(-75.5, -28.7, 0), Vector(-71.5, -28.7, 0)),
    Part.LineSegment(Vector(-75.5, -49.2, 0), Vector(-71.5, -49.2, 0)),
    Part.LineSegment(Vector(-71.5, -49.2, 0), Vector(-71.5, -55.7, 0)),
    Part.LineSegment(Vector(-71.5, -55.7, 0), Vector(-75.5, -55.7, 0)),
    Part.LineSegment(Vector(-75.5, -55.7, 0), Vector(-75.5, -49.2, 0)),
], False)
sketch8.addConstraint([
    Sketcher.Constraint("Coincident", 0, 2, 1, 1),
    Sketcher.Constraint("Coincident", 1, 2, 2, 1),
    Sketcher.Constraint("Coincident", 2, 2, 3, 1),
    Sketcher.Constraint("Coincident", 3, 2, 0, 1),
    Sketcher.Constraint("Coincident", 4, 2, 5, 1),
    Sketcher.Constraint("Coincident", 5, 2, 6, 1),
    Sketcher.Constraint("Coincident", 6, 2, 7, 1),
    Sketcher.Constraint("Coincident", 7, 2, 4, 1),
    Sketcher.Constraint("Coincident", 8, 2, 9, 1),
    Sketcher.Constraint("Coincident", 9, 2, 10, 1),
    Sketcher.Constraint("Coincident", 10, 2, 11, 1),
    Sketcher.Constraint("Coincident", 11, 2, 8, 1),
    Sketcher.Constraint("Vertical", 0),
    Sketcher.Constraint("Horizontal", 1),
    Sketcher.Constraint("Vertical", 2),
    Sketcher.Constraint("Horizontal", 3),
    Sketcher.Constraint("Vertical", 4),
    Sketcher.Constraint("Horizontal", 5),
    Sketcher.Constraint("Vertical", 6),
    Sketcher.Constraint("Horizontal", 7),
    Sketcher.Constraint("Horizontal", 8),
    Sketcher.Constraint("Vertical", 9),
    Sketcher.Constraint("Horizontal", 10),
    Sketcher.Constraint("Vertical", 11),
    Sketcher.Constraint("Vertical", 7, 2, 8, 2),
    Sketcher.Constraint("Vertical", 6, 2, 10, 2),
    Sketcher.Constraint("Equal", 3, 5),
    Sketcher.Constraint("DistanceX", 1, 1, 1, 2, 3.974),
    Sketcher.Constraint("DistanceY", 9, 2, 9, 1, 6.52),
    Sketcher.Constraint("DistanceY", 3, 2, 8, 2, 5.01),
    Sketcher.Constraint("DistanceY", 0, 1, 0, 2, 15.4698),
    Sketcher.Constraint("DistanceY", 4, 2, 4, 1, 6.2953),
    Sketcher.Constraint("DistanceY", 0, 2, 4, 2, 3.663),
    Sketcher.Constraint("DistanceX", 0, 2, -1, 1, 56.7572),
    Sketcher.Constraint("DistanceY", 0, 2, -1, 1, 38.6928),
    Sketcher.Constraint("DistanceX", 4, 2, -1, 1, 71.4826),
])
pad5 = body.newObject("PartDesign::Pad", "Pad004")
pad5.Profile = sketch8
pad5.Length = 8

doc.recompute()
